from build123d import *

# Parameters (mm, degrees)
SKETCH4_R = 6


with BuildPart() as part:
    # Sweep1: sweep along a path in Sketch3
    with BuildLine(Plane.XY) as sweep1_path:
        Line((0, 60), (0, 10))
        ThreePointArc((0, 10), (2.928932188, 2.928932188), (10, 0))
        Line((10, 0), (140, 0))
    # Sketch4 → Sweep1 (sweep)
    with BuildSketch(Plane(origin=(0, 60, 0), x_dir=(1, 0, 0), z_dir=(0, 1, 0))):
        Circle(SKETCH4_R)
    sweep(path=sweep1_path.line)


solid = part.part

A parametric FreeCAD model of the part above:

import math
import FreeCAD as App
import Part
import Sketcher

V = App.Vector

doc = App.newDocument("Part")
body = doc.addObject("PartDesign::Body", "Body")

# Sketch on XZ plane
sketch1 = body.newObject("Sketcher::SketchObject", "Sketch")
sketch1.AttachmentSupport = (doc.getObject("XZ_Plane"), [""])
sketch1.MapMode = "FlatFace"
sketch1.AttachmentOffset = App.Placement(V(0, 0, -60), App.Rotation())
sketch1.addGeometry(Part.Circle(V(0, 0, 0), V(0, 0, 1), 6), False)
sketch1.addConstraint([
    Sketcher.Constraint("Coincident", 0, 3, -1, 1),
    Sketcher.Constraint("Diameter", 0, 12.0),
])

# Sketch on XY plane
sketch2 = body.newObject("Sketcher::SketchObject", "Sketch001")
sketch2.AttachmentSupport = (doc.getObject("XY_Plane"), [""])
sketch2.MapMode = "FlatFace"
sketch2.addGeometry([
    Part.LineSegment(V(0, 60, 0), V(0, 10, 0)),
    Part.ArcOfCircle(Part.Circle(V(10, 10, 0), V(0, 0, 1), 10), math.radians(180), math.radians(270)),
    Part.LineSegment(V(10, 0, 0), V(140, 0, 0)),
], False)
sketch2.addConstraint([
    Sketcher.Constraint("Tangent", 0, 2, 1, 1),
    Sketcher.Constraint("Tangent", 1, 2, 2, 1),
    Sketcher.Constraint("Vertical", 0),
    Sketcher.Constraint("Horizontal", 2),
    Sketcher.Constraint("PointOnObject", 0, 1, -2),
    Sketcher.Constraint("PointOnObject", 1, 2, -1),
    Sketcher.Constraint("Radius", 1, 10.0),
    Sketcher.Constraint("DistanceX", 2, 1, 2, 2, 130.0),
    Sketcher.Constraint("DistanceY", 0, 2, 0, 1, 50.0),
])
doc.recompute()

additivepipe = body.newObject("PartDesign::AdditivePipe", "AdditivePipe")
additivepipe.Profile = sketch1
additivepipe.Spine = (sketch2, ["Edge1", "Edge2", "Edge3"])

doc.recompute()
